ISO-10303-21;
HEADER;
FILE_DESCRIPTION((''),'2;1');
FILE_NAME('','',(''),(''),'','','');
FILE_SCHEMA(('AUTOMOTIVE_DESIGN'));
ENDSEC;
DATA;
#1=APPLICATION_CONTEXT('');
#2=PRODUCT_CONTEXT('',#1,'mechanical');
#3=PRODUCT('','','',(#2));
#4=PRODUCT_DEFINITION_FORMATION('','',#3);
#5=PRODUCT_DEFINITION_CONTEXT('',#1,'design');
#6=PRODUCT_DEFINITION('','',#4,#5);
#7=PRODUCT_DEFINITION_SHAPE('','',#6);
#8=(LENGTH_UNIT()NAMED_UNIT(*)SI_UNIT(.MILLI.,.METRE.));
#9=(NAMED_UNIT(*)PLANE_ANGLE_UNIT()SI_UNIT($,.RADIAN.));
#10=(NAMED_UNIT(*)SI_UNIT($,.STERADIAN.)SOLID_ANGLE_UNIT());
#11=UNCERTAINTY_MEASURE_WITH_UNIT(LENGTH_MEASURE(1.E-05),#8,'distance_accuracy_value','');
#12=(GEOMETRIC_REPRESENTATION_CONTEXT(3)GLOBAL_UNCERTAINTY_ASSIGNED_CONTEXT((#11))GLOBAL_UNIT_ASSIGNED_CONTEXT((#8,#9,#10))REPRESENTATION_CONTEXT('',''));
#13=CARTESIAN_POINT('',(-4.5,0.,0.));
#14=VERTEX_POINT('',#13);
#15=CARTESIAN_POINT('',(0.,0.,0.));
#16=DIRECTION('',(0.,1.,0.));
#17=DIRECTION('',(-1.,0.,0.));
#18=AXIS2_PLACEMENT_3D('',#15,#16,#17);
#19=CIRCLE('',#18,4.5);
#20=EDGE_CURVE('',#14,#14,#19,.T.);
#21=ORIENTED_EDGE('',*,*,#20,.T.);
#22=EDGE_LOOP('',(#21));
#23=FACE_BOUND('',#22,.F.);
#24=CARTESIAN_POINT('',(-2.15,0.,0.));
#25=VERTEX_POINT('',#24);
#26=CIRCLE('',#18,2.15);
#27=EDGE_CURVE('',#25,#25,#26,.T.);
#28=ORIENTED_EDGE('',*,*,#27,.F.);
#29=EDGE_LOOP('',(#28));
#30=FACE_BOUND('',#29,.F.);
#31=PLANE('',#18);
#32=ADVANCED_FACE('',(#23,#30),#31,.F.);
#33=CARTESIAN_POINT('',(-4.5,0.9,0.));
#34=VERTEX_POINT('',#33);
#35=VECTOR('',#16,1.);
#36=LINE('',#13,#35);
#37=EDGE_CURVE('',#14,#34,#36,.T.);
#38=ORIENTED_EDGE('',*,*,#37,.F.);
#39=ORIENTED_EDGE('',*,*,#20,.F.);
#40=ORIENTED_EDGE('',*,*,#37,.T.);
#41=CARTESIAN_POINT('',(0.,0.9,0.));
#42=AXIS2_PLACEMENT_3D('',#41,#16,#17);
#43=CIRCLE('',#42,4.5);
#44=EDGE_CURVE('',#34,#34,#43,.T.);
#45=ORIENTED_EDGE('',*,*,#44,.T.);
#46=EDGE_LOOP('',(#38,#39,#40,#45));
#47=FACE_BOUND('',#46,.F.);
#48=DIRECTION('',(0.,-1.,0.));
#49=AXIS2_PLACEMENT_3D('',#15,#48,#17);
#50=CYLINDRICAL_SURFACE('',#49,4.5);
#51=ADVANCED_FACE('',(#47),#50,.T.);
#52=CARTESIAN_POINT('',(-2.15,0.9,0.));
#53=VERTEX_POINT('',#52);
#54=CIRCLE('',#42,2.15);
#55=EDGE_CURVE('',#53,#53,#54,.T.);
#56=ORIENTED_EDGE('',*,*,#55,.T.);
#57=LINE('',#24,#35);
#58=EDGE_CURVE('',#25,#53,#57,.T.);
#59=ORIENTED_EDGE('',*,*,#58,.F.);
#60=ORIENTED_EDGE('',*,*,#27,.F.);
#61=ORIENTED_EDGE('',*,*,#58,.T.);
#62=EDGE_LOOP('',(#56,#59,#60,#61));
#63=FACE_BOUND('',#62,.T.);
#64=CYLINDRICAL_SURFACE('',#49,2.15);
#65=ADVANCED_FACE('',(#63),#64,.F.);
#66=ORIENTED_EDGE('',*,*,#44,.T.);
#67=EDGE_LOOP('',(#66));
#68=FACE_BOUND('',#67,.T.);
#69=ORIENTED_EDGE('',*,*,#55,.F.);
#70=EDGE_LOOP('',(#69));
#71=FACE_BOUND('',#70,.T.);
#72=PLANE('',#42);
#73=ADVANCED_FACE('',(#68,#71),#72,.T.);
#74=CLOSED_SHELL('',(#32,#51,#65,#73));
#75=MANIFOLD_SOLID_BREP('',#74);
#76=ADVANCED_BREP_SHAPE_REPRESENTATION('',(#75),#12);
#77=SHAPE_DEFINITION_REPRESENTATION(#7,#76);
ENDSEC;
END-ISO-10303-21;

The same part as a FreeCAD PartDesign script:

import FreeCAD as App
import Part
import Sketcher

doc = App.newDocument("Part")
body = doc.addObject("PartDesign::Body", "Body")

sketch1 = doc.addObject("Sketcher::SketchObject", "Sketch")
body.addObject(sketch1)
sketch1.AttachmentSupport = (doc.XZ_Plane, [""])
sketch1.MapMode = "FlatFace"
sketch1.addGeometry([
    Part.Circle(App.Vector(0, 0, 0), App.Vector(0, 0, 1), 4.5),
    Part.Circle(App.Vector(0, 0, 0), App.Vector(0, 0, 1), 2.1),
], False)
sketch1.addConstraint([
    Sketcher.Constraint("Coincident", 0, 3, -1, 1),
    Sketcher.Constraint("Coincident", 1, 3, -1, 1),
    Sketcher.Constraint("Diameter", 0, 9.0),
    Sketcher.Constraint("Diameter", 1, 4.3),
])
pad1 = doc.addObject("PartDesign::Pad", "Pad")
body.addObject(pad1)
pad1.Profile = sketch1
pad1.Length = 0.9
pad1.Reversed = True

doc.recompute()
